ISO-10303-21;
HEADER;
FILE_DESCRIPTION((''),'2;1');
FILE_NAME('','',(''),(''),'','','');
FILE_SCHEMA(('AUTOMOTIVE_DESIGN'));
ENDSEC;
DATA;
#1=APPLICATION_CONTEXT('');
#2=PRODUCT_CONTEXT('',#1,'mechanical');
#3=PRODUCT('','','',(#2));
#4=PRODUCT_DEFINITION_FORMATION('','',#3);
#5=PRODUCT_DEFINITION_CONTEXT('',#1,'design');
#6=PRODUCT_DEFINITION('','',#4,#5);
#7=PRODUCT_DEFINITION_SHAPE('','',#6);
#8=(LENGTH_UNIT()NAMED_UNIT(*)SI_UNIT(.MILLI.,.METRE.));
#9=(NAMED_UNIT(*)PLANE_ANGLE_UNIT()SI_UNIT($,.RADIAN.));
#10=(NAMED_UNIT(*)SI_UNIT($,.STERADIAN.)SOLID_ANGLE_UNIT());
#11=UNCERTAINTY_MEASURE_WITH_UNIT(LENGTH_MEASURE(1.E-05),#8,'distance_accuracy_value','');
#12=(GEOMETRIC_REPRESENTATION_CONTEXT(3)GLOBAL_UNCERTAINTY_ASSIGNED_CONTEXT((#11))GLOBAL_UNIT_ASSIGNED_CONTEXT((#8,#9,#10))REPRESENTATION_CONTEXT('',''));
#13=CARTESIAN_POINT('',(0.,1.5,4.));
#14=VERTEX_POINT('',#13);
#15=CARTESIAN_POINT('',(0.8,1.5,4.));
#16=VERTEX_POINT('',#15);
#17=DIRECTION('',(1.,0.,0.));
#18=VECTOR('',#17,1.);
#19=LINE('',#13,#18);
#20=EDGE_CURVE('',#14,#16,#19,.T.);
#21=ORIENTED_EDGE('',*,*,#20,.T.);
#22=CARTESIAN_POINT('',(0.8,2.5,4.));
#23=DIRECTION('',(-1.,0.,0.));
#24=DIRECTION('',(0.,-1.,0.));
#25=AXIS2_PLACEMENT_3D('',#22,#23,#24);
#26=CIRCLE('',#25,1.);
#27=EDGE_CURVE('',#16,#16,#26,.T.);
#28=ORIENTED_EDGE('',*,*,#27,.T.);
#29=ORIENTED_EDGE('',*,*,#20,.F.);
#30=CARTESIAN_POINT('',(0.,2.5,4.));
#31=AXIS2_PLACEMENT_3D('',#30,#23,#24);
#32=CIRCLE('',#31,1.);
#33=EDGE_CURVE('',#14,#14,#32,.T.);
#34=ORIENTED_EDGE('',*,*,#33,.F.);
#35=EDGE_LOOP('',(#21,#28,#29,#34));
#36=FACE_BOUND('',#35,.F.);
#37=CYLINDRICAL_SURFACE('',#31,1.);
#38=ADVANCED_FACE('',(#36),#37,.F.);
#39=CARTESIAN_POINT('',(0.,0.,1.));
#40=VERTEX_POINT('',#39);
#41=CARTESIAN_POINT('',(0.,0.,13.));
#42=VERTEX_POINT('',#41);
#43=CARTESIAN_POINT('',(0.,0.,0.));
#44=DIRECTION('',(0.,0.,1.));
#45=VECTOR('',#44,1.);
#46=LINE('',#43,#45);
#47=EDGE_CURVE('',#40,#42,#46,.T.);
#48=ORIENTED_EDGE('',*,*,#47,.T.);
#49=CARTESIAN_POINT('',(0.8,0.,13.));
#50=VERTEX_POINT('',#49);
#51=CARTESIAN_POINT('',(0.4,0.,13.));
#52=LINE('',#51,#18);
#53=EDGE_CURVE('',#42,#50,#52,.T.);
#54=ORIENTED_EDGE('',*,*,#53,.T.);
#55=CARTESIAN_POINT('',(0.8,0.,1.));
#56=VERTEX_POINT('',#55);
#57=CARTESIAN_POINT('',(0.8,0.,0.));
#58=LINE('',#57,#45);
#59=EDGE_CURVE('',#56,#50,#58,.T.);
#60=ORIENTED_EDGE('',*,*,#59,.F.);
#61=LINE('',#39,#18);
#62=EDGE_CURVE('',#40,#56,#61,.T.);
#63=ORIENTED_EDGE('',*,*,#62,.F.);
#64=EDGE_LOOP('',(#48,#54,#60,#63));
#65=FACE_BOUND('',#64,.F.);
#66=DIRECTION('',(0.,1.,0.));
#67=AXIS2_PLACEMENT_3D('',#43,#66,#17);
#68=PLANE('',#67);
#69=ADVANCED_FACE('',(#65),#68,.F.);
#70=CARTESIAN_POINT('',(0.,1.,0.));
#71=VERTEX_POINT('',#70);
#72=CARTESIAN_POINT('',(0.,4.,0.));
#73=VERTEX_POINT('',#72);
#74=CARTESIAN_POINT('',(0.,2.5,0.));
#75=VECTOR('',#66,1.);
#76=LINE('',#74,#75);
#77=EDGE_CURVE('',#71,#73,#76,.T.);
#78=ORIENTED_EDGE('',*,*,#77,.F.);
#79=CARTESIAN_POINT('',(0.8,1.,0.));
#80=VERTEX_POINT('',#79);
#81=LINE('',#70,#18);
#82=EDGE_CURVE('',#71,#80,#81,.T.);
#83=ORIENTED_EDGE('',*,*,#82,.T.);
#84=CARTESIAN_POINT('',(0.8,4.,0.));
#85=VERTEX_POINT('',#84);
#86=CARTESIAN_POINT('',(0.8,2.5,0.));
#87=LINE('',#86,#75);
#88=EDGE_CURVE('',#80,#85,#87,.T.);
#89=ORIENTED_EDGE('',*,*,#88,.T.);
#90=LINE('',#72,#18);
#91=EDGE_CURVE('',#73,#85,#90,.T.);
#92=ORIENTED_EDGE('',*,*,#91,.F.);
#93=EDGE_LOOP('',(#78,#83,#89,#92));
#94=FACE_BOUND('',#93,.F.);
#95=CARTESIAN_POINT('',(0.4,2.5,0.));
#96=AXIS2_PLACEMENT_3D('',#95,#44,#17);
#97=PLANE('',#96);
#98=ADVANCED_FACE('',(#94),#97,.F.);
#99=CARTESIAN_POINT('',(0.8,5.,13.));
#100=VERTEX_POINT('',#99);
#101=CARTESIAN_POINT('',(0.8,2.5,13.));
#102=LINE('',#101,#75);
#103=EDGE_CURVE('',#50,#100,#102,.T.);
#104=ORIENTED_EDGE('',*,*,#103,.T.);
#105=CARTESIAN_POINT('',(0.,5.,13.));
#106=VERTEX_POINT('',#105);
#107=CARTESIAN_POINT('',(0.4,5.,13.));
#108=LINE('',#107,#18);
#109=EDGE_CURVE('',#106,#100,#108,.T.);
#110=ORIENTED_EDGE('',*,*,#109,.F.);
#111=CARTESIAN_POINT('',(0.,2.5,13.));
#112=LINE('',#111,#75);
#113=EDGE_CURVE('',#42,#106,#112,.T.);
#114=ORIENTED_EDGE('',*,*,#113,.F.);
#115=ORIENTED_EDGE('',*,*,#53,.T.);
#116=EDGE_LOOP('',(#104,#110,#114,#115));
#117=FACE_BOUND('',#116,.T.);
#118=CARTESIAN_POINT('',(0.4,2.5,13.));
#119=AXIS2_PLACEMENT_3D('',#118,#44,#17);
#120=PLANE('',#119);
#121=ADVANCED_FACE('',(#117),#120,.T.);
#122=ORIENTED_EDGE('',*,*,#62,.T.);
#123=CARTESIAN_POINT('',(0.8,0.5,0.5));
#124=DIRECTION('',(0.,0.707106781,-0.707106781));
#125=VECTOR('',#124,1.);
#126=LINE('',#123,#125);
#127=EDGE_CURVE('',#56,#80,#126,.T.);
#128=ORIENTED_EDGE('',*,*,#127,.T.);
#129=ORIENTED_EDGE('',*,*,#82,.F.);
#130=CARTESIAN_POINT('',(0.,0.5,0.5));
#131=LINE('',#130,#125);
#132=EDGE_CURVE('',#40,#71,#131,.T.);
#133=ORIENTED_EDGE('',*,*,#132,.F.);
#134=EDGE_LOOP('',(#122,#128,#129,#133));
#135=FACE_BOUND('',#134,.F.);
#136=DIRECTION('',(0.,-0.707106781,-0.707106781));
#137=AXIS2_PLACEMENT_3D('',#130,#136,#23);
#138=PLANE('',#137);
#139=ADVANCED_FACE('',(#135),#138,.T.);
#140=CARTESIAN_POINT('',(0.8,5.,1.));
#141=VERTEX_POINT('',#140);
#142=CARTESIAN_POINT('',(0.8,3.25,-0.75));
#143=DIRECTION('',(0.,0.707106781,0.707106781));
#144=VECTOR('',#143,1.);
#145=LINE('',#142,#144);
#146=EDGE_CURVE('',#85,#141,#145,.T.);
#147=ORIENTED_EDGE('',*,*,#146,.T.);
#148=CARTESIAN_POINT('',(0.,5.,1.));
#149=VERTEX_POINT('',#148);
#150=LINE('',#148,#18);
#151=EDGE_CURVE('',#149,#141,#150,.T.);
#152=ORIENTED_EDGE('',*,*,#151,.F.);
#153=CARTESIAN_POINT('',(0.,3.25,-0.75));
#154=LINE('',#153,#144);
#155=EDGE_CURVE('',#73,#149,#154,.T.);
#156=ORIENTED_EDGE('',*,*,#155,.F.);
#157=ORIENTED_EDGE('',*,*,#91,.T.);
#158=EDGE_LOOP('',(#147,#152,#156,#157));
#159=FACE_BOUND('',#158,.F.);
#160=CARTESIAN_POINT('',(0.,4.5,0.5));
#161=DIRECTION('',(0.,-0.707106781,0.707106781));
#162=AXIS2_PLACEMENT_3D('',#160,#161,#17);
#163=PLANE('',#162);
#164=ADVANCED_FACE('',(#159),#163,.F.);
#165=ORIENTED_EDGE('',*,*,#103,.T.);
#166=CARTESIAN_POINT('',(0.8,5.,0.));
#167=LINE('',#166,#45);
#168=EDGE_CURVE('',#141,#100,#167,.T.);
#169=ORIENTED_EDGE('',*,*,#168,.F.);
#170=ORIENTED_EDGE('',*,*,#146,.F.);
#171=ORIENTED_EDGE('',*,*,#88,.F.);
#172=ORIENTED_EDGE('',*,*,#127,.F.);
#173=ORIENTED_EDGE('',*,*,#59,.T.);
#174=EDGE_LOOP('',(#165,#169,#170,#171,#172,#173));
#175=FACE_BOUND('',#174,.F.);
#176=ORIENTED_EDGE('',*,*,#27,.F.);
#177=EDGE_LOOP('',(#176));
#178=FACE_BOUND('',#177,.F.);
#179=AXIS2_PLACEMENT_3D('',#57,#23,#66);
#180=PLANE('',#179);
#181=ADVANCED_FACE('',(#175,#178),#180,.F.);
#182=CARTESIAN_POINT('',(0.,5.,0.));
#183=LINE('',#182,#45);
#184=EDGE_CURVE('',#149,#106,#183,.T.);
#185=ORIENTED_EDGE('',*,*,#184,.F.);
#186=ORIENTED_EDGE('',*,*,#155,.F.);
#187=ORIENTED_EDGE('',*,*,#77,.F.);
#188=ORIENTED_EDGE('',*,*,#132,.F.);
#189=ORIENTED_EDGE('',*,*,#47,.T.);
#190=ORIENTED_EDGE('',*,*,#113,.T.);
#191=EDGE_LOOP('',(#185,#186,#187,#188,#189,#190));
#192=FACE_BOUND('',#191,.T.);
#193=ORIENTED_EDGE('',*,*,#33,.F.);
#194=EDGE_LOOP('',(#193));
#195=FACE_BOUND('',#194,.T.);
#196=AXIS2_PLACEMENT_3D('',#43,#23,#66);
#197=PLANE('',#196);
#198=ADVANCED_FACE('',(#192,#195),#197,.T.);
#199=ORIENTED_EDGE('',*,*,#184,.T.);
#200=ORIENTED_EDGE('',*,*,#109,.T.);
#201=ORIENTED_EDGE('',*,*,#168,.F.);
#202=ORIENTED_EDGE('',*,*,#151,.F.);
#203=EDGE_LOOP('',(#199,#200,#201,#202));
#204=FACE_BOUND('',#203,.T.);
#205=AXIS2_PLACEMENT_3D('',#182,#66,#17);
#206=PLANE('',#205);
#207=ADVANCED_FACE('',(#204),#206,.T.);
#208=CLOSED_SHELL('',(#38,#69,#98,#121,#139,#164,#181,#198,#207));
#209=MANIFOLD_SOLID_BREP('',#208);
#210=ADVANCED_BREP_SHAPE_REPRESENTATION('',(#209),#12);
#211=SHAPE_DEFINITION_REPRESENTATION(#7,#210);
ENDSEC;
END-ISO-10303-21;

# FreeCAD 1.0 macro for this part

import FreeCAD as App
import Part
import Sketcher
Q = App.Units.Quantity


def edges_at(feature, points):
    """Names of the edges that pass closest to the given points."""
    edges = feature.Shape.Edges
    near = lambda p: min(range(len(edges)), key=lambda i: edges[i].distToShape(Part.Vertex(*p))[0])
    return sorted({f"Edge{near(p) + 1}" for p in points})


def add_polygon(sketch, points):
    """Adds a closed chain of lines whose ends are joined by coincident constraints."""
    first, n = sketch.GeometryCount, len(points)
    for a, b in zip(points, points[1:] + points[:1]):
        sketch.addGeometry(Part.LineSegment(App.Vector(*a, 0), App.Vector(*b, 0)), False)
    for i in range(n):
        sketch.addConstraint(Sketcher.Constraint("Coincident", first + i, 2, first + (i + 1) % n, 1))

doc = App.newDocument("Part")
params = doc.addObject("Spreadsheet::Sheet", "Params")
for row, (alias, value) in enumerate([
    ("sketch1_height", "5 mm"),
    ("sketch1_width", "0.8 mm"),
    ("pad1_length", "13 mm"),
    ("sketch2_diameter", "2 mm"),
    ("chamfer_size", "1 mm"),
], start=1):
    params.set(f"A{row}", alias)
    params.set(f"B{row}", "=" + value)
    params.setAlias(f"B{row}", alias)

body = doc.addObject("PartDesign::Body", "Body")

# Sketch on XY plane
sketch1 = doc.addObject("Sketcher::SketchObject", "Sketch")
body.addObject(sketch1)
sketch1.AttachmentSupport = (doc.XY_Plane, [""])
sketch1.MapMode = "FlatFace"
add_polygon(sketch1, [(0, 5), (0, 0), (0.8, 0), (0.8, 5)])  # lines 0-3
sketch1.addConstraint(Sketcher.Constraint("Vertical", 0))
sketch1.addConstraint(Sketcher.Constraint("Horizontal", 1))
sketch1.addConstraint(Sketcher.Constraint("Vertical", 2))
sketch1.addConstraint(Sketcher.Constraint("Horizontal", 3))
sketch1.addConstraint(Sketcher.Constraint("Coincident", 0, 2, -1, 1))
sketch1.addConstraint(Sketcher.Constraint("DistanceY", 0, 2, 0, 1, Q("5 mm")))
sketch1.addConstraint(Sketcher.Constraint("DistanceX", 1, 1, 1, 2, Q("0.8 mm")))
sketch1.setExpression("Constraints[9]", "Params.sketch1_height")
sketch1.setExpression("Constraints[10]", "Params.sketch1_width")
pad1 = doc.addObject("PartDesign::Pad", "Pad")
body.addObject(pad1)
pad1.Profile = sketch1
pad1.setExpression("Length", "Params.pad1_length")

# Sketch on YZ plane
sketch2 = doc.addObject("Sketcher::SketchObject", "Sketch001")
body.addObject(sketch2)
sketch2.AttachmentSupport = (doc.YZ_Plane, [""])
sketch2.MapMode = "FlatFace"
sketch2.addGeometry(Part.Circle(App.Vector(2.5, 4, 0), App.Vector(0, 0, 1), 1), False)
sketch2.addConstraint(Sketcher.Constraint("Diameter", 0, Q("2 mm")))
sketch2.addConstraint(Sketcher.Constraint("DistanceY", -1, 1, 0, 3, Q("4 mm")))
sketch2.addConstraint(Sketcher.Constraint("DistanceX", -1, 1, 0, 3, Q("2.5 mm")))
sketch2.setExpression("Constraints[0]", "Params.sketch2_diameter")
pocket1 = doc.addObject("PartDesign::Pocket", "Pocket")
body.addObject(pocket1)
pocket1.Profile = sketch2
pocket1.Type = "ThroughAll"
pocket1.Reversed = True
doc.recompute()

chamfer = doc.addObject("PartDesign::Chamfer", "Chamfer")
body.addObject(chamfer)
chamfer.Base = (pocket1, edges_at(pocket1, [(0.4, 5, 0), (0.4, 0, 0)]))
chamfer.setExpression("Size", "Params.chamfer_size")

doc.recompute()
